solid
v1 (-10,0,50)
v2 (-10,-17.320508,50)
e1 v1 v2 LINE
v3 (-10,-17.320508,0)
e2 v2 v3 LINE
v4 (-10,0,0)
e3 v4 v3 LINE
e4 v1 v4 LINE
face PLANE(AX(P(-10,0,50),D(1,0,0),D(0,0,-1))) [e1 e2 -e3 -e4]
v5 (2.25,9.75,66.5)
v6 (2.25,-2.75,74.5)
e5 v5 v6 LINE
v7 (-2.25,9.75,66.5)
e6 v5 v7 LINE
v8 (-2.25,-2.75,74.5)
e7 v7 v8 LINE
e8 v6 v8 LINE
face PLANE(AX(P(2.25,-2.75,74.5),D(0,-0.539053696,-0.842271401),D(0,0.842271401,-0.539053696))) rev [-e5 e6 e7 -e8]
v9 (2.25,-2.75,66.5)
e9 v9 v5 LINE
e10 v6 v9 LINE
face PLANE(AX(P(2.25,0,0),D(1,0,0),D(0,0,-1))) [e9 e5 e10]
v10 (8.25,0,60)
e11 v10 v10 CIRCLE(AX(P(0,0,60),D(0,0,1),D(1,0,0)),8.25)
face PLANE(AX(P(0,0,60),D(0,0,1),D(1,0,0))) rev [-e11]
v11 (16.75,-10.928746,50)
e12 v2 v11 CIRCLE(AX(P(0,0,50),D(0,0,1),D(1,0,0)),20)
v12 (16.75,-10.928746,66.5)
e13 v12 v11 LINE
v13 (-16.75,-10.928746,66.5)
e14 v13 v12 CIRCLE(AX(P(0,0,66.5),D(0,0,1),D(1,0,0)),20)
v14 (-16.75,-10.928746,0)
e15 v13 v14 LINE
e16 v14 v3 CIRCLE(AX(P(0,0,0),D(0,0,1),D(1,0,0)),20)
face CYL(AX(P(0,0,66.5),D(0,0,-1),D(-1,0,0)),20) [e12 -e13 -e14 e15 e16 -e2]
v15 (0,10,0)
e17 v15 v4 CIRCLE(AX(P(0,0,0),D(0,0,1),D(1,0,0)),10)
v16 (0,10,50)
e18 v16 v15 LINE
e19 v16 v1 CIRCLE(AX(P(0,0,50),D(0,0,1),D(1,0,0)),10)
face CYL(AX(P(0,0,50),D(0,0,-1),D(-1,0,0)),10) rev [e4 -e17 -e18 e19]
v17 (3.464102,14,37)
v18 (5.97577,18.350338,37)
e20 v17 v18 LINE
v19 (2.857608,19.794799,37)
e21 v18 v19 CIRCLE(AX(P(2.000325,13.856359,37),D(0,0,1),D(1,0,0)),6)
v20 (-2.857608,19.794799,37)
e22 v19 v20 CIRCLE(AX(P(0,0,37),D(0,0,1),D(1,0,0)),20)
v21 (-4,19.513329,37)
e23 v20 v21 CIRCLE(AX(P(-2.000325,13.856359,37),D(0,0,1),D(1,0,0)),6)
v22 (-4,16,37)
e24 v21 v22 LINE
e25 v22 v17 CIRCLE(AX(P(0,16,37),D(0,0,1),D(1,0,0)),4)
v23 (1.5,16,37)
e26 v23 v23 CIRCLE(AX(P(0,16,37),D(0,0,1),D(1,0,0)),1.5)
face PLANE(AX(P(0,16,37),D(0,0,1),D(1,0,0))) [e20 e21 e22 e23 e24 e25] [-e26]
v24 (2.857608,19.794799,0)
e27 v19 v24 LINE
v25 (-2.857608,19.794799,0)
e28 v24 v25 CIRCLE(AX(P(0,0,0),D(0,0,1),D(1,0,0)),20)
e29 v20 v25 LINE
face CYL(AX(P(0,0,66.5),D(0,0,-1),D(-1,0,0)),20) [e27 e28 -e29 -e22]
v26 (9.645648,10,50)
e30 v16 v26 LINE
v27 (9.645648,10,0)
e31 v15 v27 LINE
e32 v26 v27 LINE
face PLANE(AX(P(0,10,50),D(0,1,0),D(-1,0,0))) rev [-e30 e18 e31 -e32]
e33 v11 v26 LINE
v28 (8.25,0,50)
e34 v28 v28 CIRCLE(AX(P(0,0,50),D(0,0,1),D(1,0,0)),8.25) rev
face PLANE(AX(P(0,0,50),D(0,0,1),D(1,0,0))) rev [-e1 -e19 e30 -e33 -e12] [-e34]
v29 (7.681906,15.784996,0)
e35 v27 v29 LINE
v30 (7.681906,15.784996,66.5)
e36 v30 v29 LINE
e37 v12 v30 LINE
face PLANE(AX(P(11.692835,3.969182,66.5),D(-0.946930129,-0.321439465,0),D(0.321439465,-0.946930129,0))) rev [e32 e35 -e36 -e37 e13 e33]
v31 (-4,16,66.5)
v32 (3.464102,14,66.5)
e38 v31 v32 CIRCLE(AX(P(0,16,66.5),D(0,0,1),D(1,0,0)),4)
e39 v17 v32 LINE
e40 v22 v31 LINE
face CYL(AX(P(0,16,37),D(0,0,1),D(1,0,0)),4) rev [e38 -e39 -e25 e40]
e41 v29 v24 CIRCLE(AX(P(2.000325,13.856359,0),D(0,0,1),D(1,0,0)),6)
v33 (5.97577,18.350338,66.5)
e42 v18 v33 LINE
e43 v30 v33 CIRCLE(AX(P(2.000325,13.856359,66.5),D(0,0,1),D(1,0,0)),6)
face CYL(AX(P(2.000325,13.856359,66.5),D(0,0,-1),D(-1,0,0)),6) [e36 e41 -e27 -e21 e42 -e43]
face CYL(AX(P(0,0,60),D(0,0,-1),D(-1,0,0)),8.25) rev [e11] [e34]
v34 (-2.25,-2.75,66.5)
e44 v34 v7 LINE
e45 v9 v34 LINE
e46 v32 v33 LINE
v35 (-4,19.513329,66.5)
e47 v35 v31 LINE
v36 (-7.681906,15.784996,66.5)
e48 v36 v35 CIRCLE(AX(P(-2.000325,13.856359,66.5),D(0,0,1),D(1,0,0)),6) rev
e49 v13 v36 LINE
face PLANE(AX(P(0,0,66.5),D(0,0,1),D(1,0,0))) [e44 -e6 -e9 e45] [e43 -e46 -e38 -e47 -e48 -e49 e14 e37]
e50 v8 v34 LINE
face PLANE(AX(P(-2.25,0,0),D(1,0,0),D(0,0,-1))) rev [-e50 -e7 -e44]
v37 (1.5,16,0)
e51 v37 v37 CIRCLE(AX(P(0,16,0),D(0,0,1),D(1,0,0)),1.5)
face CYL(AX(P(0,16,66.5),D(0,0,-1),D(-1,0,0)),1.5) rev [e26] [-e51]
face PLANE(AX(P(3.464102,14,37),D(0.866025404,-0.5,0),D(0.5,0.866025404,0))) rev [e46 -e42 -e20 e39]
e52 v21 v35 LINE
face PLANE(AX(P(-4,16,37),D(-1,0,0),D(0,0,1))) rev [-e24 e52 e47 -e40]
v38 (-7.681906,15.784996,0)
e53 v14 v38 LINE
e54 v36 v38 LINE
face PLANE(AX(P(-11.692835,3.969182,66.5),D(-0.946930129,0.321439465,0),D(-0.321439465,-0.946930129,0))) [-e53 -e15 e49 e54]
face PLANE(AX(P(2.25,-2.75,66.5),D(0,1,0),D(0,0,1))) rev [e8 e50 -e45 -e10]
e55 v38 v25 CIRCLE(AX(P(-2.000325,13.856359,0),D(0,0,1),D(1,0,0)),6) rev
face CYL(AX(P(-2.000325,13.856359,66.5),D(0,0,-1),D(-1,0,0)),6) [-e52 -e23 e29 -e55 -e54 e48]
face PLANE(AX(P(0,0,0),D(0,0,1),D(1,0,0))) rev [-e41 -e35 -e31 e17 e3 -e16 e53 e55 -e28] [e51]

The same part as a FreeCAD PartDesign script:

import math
import FreeCAD as App
import Part
import Sketcher
Q = App.Units.Quantity

doc = App.newDocument("Part")
body = doc.addObject("PartDesign::Body", "Body")

sketch1 = doc.addObject("Sketcher::SketchObject", "Sketch")
body.addObject(sketch1)
sketch1.AttachmentSupport = (doc.XY_Plane, [""])
sketch1.MapMode = "FlatFace"
sketch1.addGeometry(Part.LineSegment(App.Vector(-7.7, 15.8, 0), App.Vector(-16.8, -10.9, 0)), False)
sketch1.addGeometry(Part.ArcOfCircle(Part.Circle(App.Vector(0, 0, 0), App.Vector(0, 0, 1), 20), math.radians(-147), math.radians(-33)), False)
sketch1.addGeometry(Part.LineSegment(App.Vector(16.8, -10.9, 0), App.Vector(7.7, 15.8, 0)), False)
sketch1.addGeometry(Part.ArcOfCircle(Part.Circle(App.Vector(2, 13.9, 0), App.Vector(0, 0, 1), 6), math.radians(19), math.radians(82)), False)
sketch1.addGeometry(Part.ArcOfCircle(Part.Circle(App.Vector(0, 0, 0), App.Vector(0, 0, 1), 20), math.radians(81.79), math.radians(98.21)), False)
sketch1.addGeometry(Part.ArcOfCircle(Part.Circle(App.Vector(-2, 13.9, 0), App.Vector(0, 0, 1), 6), math.radians(98), math.radians(161)), False)
sketch1.addGeometry(Part.Circle(App.Vector(0, 16, 0), App.Vector(0, 0, 1), 1.5), False)
sketch1.addConstraint(Sketcher.Constraint("Coincident", 0, 2, 1, 1))
sketch1.addConstraint(Sketcher.Constraint("Coincident", 1, 2, 2, 1))
sketch1.addConstraint(Sketcher.Constraint("Tangent", 2, 2, 3, 1))
sketch1.addConstraint(Sketcher.Constraint("Tangent", 3, 2, 4, 1))
sketch1.addConstraint(Sketcher.Constraint("Tangent", 4, 2, 5, 1))
sketch1.addConstraint(Sketcher.Constraint("Tangent", 5, 2, 0, 1))
sketch1.addConstraint(Sketcher.Constraint("Coincident", 1, 3, -1, 1))
sketch1.addConstraint(Sketcher.Constraint("Coincident", 4, 3, -1, 1))
sketch1.addConstraint(Sketcher.Constraint("Equal", 1, 4))
sketch1.addConstraint(Sketcher.Constraint("Equal", 3, 5))
sketch1.addConstraint(Sketcher.Constraint("Symmetric", 2, 2, 5, 2, -2))
sketch1.addConstraint(Sketcher.Constraint("PointOnObject", 6, 3, -2))
sketch1.addConstraint(Sketcher.Constraint("Diameter", 6, 3.0))
sketch1.addConstraint(Sketcher.Constraint("Radius", 1, 20.0))
sketch1.addConstraint(Sketcher.Constraint("Radius", 3, 6.0))
sketch1.addConstraint(Sketcher.Constraint("DistanceY", -1, 1, 6, 3, 16.0))
sketch1.addConstraint(Sketcher.Constraint("Angle", 0, Q("-108.75 deg")))
sketch1.addConstraint(Sketcher.Constraint("DistanceX", 0, 2, -1, 1, 16.75))
pad1 = doc.addObject("PartDesign::Pad", "Pad")
body.addObject(pad1)
pad1.Profile = sketch1
pad1.Length = 66.5

sketch2 = doc.addObject("Sketcher::SketchObject", "Sketch001")
body.addObject(sketch2)
sketch2.AttachmentSupport = (doc.XY_Plane, [""])
sketch2.MapMode = "FlatFace"
sketch2.AttachmentOffset = App.Placement(App.Vector(0, 0, 66.5), App.Rotation())
sketch2.addGeometry(Part.LineSegment(App.Vector(3.5, 14, 0), App.Vector(6, 18.4, 0)), False)
sketch2.addGeometry(Part.ArcOfCircle(Part.Circle(App.Vector(2, 13.9, 0), App.Vector(0, 0, 1), 6), math.radians(49), math.radians(82)), False)
sketch2.addGeometry(Part.ArcOfCircle(Part.Circle(App.Vector(0, 0, 0), App.Vector(0, 0, 1), 20), math.radians(81.79), math.radians(98.21)), False)
sketch2.addGeometry(Part.ArcOfCircle(Part.Circle(App.Vector(-2, 13.9, 0), App.Vector(0, 0, 1), 6), math.radians(98.21), math.radians(109.47)), False)
sketch2.addGeometry(Part.LineSegment(App.Vector(-4, 19.5, 0), App.Vector(-4, 16, 0)), False)
sketch2.addGeometry(Part.ArcOfCircle(Part.Circle(App.Vector(0, 16, 0), App.Vector(0, 0, 1), 4), math.radians(180), math.radians(330)), False)
sketch2.addConstraint(Sketcher.Constraint("Coincident", 0, 2, 1, 1))
sketch2.addConstraint(Sketcher.Constraint("Tangent", 1, 2, 2, 1))
sketch2.addConstraint(Sketcher.Constraint("Tangent", 2, 2, 3, 1))
sketch2.addConstraint(Sketcher.Constraint("Coincident", 3, 2, 4, 1))
sketch2.addConstraint(Sketcher.Constraint("Tangent", 4, 2, 5, 1))
sketch2.addConstraint(Sketcher.Constraint("Tangent", 5, 2, 0, 1))
sketch2.addConstraint(Sketcher.Constraint("Vertical", 4))
sketch2.addConstraint(Sketcher.Constraint("Coincident", 2, 3, -1, 1))
sketch2.addConstraint(Sketcher.Constraint("Equal", 1, 3))
sketch2.addConstraint(Sketcher.Constraint("PointOnObject", 5, 3, -2))
sketch2.addConstraint(Sketcher.Constraint("Horizontal", 1, 3, 3, 3))
sketch2.addConstraint(Sketcher.Constraint("Radius", 1, 6.0))
sketch2.addConstraint(Sketcher.Constraint("Radius", 2, 20.0))
sketch2.addConstraint(Sketcher.Constraint("Radius", 5, 4.0))
sketch2.addConstraint(Sketcher.Constraint("Angle", 0, Q("60 deg")))
sketch2.addConstraint(Sketcher.Constraint("DistanceY", -1, 1, 5, 3, 16.0))
sketch2.addConstraint(Sketcher.Constraint("DistanceY", 4, 2, 4, 1, 3.513329))
pocket1 = doc.addObject("PartDesign::Pocket", "Pocket")
body.addObject(pocket1)
pocket1.Profile = sketch2
pocket1.Type = "TwoLengths"
pocket1.Length = 72.433973
pocket1.Length2 = 29.5
pocket1.Reversed = True

sketch3 = doc.addObject("Sketcher::SketchObject", "Sketch002")
body.addObject(sketch3)
sketch3.AttachmentSupport = (doc.XY_Plane, [""])
sketch3.MapMode = "FlatFace"
sketch3.addGeometry(Part.LineSegment(App.Vector(-10, 0, 0), App.Vector(-10, -17, 0)), False)
sketch3.addGeometry(Part.ArcOfCircle(Part.Circle(App.Vector(0, 0, 0), App.Vector(0, 0, 1), 20), math.radians(-120), math.radians(-33)), False)
sketch3.addGeometry(Part.LineSegment(App.Vector(17, -11, 0), App.Vector(10, 10, 0)), False)
sketch3.addGeometry(Part.LineSegment(App.Vector(10, 10, 0), App.Vector(0, 10, 0)), False)
sketch3.addGeometry(Part.ArcOfCircle(Part.Circle(App.Vector(0, 0, 0), App.Vector(0, 0, 1), 10), math.radians(90), math.radians(180)), False)
sketch3.addConstraint(Sketcher.Constraint("Coincident", 0, 2, 1, 1))
sketch3.addConstraint(Sketcher.Constraint("Coincident", 1, 2, 2, 1))
sketch3.addConstraint(Sketcher.Constraint("Coincident", 2, 2, 3, 1))
sketch3.addConstraint(Sketcher.Constraint("Tangent", 3, 2, 4, 1))
sketch3.addConstraint(Sketcher.Constraint("Tangent", 4, 2, 0, 1))
sketch3.addConstraint(Sketcher.Constraint("Vertical", 0))
sketch3.addConstraint(Sketcher.Constraint("Horizontal", 3))
sketch3.addConstraint(Sketcher.Constraint("Coincident", 1, 3, -1, 1))
sketch3.addConstraint(Sketcher.Constraint("Coincident", 4, 3, -1, 1))
sketch3.addConstraint(Sketcher.Constraint("Radius", 1, 20.0))
sketch3.addConstraint(Sketcher.Constraint("Radius", 4, 10.0))
sketch3.addConstraint(Sketcher.Constraint("Angle", 2, Q("108.75 deg")))
sketch3.addConstraint(Sketcher.Constraint("DistanceX", -1, 1, 1, 2, 16.75))
pocket2 = doc.addObject("PartDesign::Pocket", "Pocket001")
body.addObject(pocket2)
pocket2.Profile = sketch3
pocket2.Length = 50
pocket2.Reversed = True

sketch4 = doc.addObject("Sketcher::SketchObject", "Sketch003")
body.addObject(sketch4)
sketch4.AttachmentSupport = (doc.XY_Plane, [""])
sketch4.MapMode = "FlatFace"
sketch4.addGeometry(Part.Circle(App.Vector(0, 0, 0), App.Vector(0, 0, 1), 8), False)
sketch4.addConstraint(Sketcher.Constraint("Coincident", 0, 3, -1, 1))
sketch4.addConstraint(Sketcher.Constraint("Diameter", 0, 16.5))
pocket3 = doc.addObject("PartDesign::Pocket", "Pocket002")
body.addObject(pocket3)
pocket3.Profile = sketch4
pocket3.Length = 60
pocket3.Reversed = True

sketch5 = doc.addObject("Sketcher::SketchObject", "Sketch004")
body.addObject(sketch5)
sketch5.AttachmentSupport = (doc.YZ_Plane, [""])
sketch5.MapMode = "FlatFace"
sketch5.addGeometry(Part.LineSegment(App.Vector(-3, 66, 0), App.Vector(10, 66, 0)), False)
sketch5.addGeometry(Part.LineSegment(App.Vector(10, 66, 0), App.Vector(-3, 74, 0)), False)
sketch5.addGeometry(Part.LineSegment(App.Vector(-3, 74, 0), App.Vector(-3, 66, 0)), False)
sketch5.addConstraint(Sketcher.Constraint("Coincident", 0, 2, 1, 1))
sketch5.addConstraint(Sketcher.Constraint("Coincident", 1, 2, 2, 1))
sketch5.addConstraint(Sketcher.Constraint("Coincident", 2, 2, 0, 1))
sketch5.addConstraint(Sketcher.Constraint("Horizontal", 0))
sketch5.addConstraint(Sketcher.Constraint("Vertical", 2))
sketch5.addConstraint(Sketcher.Constraint("DistanceY", 2, 2, 2, 1, 8.0))
sketch5.addConstraint(Sketcher.Constraint("DistanceX", 0, 1, 0, 2, 12.5))
sketch5.addConstraint(Sketcher.Constraint("DistanceY", -1, 1, 0, 2, 66.5))
sketch5.addConstraint(Sketcher.Constraint("DistanceX", -1, 1, 0, 2, 9.75))
pad2 = doc.addObject("PartDesign::Pad", "Pad001")
body.addObject(pad2)
pad2.Profile = sketch5
pad2.Length = 4.5
pad2.Midplane = True

doc.recompute()
